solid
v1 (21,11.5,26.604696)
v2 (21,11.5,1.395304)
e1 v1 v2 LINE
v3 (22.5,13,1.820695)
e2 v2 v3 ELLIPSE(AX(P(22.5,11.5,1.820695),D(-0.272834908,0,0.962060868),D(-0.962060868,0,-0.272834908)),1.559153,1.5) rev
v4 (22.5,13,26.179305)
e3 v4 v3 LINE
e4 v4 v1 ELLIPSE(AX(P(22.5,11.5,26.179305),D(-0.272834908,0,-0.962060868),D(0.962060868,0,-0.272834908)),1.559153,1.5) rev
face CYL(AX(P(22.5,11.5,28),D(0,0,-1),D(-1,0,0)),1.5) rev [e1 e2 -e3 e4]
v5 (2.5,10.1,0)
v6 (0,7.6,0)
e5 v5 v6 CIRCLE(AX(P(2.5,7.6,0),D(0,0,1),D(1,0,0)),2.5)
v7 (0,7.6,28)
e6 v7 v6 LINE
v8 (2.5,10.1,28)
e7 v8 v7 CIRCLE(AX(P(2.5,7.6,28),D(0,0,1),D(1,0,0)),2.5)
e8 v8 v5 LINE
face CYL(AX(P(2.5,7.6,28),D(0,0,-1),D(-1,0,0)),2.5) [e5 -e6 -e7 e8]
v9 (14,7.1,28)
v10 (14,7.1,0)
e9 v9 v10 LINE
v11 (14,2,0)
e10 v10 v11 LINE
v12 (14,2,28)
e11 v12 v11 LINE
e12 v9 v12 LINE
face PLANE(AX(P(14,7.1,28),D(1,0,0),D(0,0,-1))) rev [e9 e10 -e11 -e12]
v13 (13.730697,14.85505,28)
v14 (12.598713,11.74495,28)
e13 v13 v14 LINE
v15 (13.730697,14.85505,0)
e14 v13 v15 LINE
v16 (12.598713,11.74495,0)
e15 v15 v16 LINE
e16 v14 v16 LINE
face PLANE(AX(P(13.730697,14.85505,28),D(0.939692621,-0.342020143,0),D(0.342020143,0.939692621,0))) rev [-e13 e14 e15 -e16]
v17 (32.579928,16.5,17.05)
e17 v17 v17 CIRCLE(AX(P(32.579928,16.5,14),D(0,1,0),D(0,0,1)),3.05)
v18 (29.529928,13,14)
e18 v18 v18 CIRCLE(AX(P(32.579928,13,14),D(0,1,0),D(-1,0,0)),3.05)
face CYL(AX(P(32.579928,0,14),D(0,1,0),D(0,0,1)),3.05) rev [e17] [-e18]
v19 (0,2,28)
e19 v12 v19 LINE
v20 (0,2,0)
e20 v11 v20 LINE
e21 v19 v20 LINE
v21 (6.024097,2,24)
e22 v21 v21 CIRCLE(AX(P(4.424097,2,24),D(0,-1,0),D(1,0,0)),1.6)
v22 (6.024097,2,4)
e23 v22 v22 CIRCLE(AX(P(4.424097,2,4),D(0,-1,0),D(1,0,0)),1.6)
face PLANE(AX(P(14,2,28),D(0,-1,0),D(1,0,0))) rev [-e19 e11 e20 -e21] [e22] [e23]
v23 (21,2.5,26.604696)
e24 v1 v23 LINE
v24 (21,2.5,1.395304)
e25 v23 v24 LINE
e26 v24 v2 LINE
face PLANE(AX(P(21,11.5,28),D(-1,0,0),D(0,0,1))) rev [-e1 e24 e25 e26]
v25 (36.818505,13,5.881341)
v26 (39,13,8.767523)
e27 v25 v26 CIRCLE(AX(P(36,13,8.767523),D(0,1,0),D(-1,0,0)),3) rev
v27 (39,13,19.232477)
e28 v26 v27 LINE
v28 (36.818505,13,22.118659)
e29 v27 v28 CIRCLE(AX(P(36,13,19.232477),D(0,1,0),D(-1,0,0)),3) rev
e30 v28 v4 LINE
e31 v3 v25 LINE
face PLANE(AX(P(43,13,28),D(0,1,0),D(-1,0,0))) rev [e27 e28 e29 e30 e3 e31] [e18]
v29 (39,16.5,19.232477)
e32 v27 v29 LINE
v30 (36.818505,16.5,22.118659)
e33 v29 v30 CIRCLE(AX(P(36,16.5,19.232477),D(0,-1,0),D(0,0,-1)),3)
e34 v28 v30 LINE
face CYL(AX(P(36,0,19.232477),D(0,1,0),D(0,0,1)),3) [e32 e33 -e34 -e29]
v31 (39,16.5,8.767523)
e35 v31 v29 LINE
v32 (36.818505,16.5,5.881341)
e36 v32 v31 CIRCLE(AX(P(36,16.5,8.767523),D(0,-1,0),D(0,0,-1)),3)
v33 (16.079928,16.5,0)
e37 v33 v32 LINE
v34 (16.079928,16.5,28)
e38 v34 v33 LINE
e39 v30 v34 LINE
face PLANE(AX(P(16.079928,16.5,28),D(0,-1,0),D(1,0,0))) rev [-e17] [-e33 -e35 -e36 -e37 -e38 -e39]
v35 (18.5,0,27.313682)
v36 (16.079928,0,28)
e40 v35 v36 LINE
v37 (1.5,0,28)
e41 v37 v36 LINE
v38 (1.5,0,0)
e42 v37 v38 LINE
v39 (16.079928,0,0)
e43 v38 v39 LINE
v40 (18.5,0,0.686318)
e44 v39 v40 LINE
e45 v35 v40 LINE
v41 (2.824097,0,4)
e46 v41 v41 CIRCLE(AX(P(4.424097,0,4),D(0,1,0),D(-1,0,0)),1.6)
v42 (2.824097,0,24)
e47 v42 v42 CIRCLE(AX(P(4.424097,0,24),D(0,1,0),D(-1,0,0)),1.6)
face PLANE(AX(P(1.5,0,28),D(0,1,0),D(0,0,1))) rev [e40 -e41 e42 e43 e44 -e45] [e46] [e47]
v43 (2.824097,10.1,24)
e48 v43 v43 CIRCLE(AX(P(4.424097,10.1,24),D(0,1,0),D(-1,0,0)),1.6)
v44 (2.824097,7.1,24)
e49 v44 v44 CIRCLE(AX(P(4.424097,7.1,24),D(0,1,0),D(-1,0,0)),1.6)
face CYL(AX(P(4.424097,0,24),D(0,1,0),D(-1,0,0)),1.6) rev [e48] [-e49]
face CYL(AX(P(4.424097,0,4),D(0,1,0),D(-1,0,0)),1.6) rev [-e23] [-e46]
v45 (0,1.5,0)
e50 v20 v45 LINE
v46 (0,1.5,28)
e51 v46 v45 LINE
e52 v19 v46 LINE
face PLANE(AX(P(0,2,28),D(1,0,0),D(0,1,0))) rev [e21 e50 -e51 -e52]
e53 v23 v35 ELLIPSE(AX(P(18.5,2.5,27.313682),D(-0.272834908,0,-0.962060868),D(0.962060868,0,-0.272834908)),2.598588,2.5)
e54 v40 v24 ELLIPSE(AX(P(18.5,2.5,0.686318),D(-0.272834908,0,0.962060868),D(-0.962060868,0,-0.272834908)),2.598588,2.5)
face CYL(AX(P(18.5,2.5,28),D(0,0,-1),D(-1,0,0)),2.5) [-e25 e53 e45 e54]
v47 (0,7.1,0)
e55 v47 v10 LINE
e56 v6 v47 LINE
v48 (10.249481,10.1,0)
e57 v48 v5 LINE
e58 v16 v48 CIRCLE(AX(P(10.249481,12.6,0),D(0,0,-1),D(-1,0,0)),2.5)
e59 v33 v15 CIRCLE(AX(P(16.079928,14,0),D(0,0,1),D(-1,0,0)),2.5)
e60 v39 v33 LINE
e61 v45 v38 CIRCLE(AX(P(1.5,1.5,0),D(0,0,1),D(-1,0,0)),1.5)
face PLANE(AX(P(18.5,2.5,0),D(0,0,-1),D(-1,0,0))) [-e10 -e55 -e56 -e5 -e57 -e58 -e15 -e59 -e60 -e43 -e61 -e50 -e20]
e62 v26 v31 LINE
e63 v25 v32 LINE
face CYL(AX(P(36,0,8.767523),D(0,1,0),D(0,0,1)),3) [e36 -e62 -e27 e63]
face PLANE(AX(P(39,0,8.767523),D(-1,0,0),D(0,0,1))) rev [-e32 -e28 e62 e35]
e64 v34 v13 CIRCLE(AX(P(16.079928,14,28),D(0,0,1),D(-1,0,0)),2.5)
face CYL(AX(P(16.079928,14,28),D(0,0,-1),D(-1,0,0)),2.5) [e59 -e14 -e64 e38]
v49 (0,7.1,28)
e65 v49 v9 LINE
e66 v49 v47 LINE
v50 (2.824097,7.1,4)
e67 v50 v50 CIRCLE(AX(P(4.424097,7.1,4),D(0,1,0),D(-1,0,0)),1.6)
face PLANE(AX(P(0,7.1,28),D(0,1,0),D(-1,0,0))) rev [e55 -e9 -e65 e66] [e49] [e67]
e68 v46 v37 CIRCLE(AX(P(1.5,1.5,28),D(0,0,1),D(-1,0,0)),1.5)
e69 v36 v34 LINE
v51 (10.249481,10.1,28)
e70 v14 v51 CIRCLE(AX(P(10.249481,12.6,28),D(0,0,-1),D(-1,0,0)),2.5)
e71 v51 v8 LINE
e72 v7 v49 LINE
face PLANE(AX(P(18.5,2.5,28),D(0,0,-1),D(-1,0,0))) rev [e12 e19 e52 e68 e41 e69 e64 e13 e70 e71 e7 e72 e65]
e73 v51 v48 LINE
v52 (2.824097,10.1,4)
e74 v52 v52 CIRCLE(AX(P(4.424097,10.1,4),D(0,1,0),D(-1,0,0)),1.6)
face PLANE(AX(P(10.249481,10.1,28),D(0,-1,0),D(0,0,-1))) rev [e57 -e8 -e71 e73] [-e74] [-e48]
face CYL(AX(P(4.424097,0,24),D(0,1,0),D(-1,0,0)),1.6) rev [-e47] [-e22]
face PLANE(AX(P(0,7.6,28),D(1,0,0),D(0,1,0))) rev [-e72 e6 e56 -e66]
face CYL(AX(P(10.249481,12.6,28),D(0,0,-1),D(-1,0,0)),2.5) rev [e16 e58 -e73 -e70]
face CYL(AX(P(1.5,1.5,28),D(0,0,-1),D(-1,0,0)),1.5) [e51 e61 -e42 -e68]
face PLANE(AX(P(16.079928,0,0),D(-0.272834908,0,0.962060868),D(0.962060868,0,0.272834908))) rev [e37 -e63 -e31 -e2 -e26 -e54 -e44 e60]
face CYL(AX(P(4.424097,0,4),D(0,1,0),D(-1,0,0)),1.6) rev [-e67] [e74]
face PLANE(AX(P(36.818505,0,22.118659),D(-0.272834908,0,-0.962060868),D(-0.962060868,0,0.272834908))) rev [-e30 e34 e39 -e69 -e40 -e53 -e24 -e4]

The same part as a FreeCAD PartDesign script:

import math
import FreeCAD as App
import Part
import Sketcher

V = App.Vector
Q = App.Units.Quantity

doc = App.newDocument("Part")
body = doc.addObject("PartDesign::Body", "Body")

# Sketch on XY plane
sketch1 = body.newObject("Sketcher::SketchObject", "Sketch")
sketch1.AttachmentSupport = (doc.getObject("XY_Plane"), [""])
sketch1.MapMode = "FlatFace"
sketch1.addGeometry([
    Part.LineSegment(V(1.5, 0, 0), V(18.5, 0, 0)),  # 0
    Part.ArcOfCircle(Part.Circle(V(18.5, 2.5, 0), V(0, 0, 1), 2.5), math.radians(-90), math.radians(0)),  # 1
    Part.LineSegment(V(21, 2.5, 0), V(21, 11.5, 0)),  # 2
    Part.ArcOfCircle(Part.Circle(V(22.5, 11.5, 0), V(0, 0, 1), 1.5), math.radians(90), math.radians(180)),  # 3
    Part.LineSegment(V(22.5, 13, 0), V(43, 13, 0)),  # 4
    Part.LineSegment(V(43, 13, 0), V(43, 16.5, 0)),  # 5
    Part.LineSegment(V(43, 16.5, 0), V(16.1, 16.5, 0)),  # 6
    Part.ArcOfCircle(Part.Circle(V(16.1, 14, 0), V(0, 0, 1), 2.5), math.radians(90), math.radians(160)),  # 7
    Part.LineSegment(V(13.7, 14.9, 0), V(12.6, 11.7, 0)),  # 8
    Part.ArcOfCircle(Part.Circle(V(10.2, 12.6, 0), V(0, 0, 1), 2.5), math.radians(-90), math.radians(-20)),  # 9
    Part.LineSegment(V(10.2, 10.1, 0), V(2.5, 10.1, 0)),  # 10
    Part.ArcOfCircle(Part.Circle(V(2.5, 7.6, 0), V(0, 0, 1), 2.5), math.radians(90), math.radians(180)),  # 11
    Part.LineSegment(V(0, 7.6, 0), V(0, 7.1, 0)),  # 12
    Part.LineSegment(V(0, 7.1, 0), V(14, 7.1, 0)),  # 13
    Part.LineSegment(V(14, 7.1, 0), V(14, 2, 0)),  # 14
    Part.LineSegment(V(14, 2, 0), V(0, 2, 0)),  # 15
    Part.LineSegment(V(0, 2, 0), V(0, 1.5, 0)),  # 16
    Part.ArcOfCircle(Part.Circle(V(1.5, 1.5, 0), V(0, 0, 1), 1.5), math.radians(180), math.radians(270)),  # 17
], False)
sketch1.addConstraint([
    Sketcher.Constraint("Tangent", 0, 2, 1, 1),
    Sketcher.Constraint("Tangent", 1, 2, 2, 1),
    Sketcher.Constraint("Tangent", 2, 2, 3, 2),
    Sketcher.Constraint("Tangent", 3, 1, 4, 1),
    Sketcher.Constraint("Coincident", 4, 2, 5, 1),
    Sketcher.Constraint("Coincident", 5, 2, 6, 1),
    Sketcher.Constraint("Tangent", 6, 2, 7, 1),
    Sketcher.Constraint("Tangent", 7, 2, 8, 1),
    Sketcher.Constraint("Tangent", 8, 2, 9, 2),
    Sketcher.Constraint("Tangent", 9, 1, 10, 1),
    Sketcher.Constraint("Tangent", 10, 2, 11, 1),
    Sketcher.Constraint("Tangent", 11, 2, 12, 1),
    Sketcher.Constraint("Coincident", 12, 2, 13, 1),
    Sketcher.Constraint("Coincident", 13, 2, 14, 1),
    Sketcher.Constraint("Coincident", 14, 2, 15, 1),
    Sketcher.Constraint("Coincident", 15, 2, 16, 1),
    Sketcher.Constraint("Tangent", 16, 2, 17, 1),
    Sketcher.Constraint("Tangent", 17, 2, 0, 1),
    Sketcher.Constraint("Horizontal", 0),
    Sketcher.Constraint("Vertical", 2),
    Sketcher.Constraint("Horizontal", 4),
    Sketcher.Constraint("Vertical", 5),
    Sketcher.Constraint("Horizontal", 6),
    Sketcher.Constraint("Horizontal", 10),
    Sketcher.Constraint("Vertical", 12),
    Sketcher.Constraint("Horizontal", 13),
    Sketcher.Constraint("Vertical", 14),
    Sketcher.Constraint("Horizontal", 15),
    Sketcher.Constraint("Vertical", 16),
    Sketcher.Constraint("Equal", 1, 7),
    Sketcher.Constraint("Equal", 7, 9),
    Sketcher.Constraint("Equal", 9, 11),
    Sketcher.Constraint("Equal", 3, 17),
    Sketcher.Constraint("PointOnObject", 0, 2, -1),
    Sketcher.Constraint("PointOnObject", 11, 2, -2),
    Sketcher.Constraint("PointOnObject", 15, 2, -2),
    Sketcher.Constraint("Equal", 12, 16),
    Sketcher.Constraint("Radius", 1, Q("2.5 mm")),
    Sketcher.Constraint("Radius", 3, Q("1.5 mm")),
    Sketcher.Constraint("DistanceX", 0, 1, 0, 2, Q("17 mm")),
    Sketcher.Constraint("DistanceX", 13, 1, 13, 2, Q("14 mm")),
    Sketcher.Constraint("DistanceY", 2, 1, 2, 2, Q("9 mm")),
    Sketcher.Constraint("Angle", 8, Q("-110 deg")),
    Sketcher.Constraint("DistanceX", 4, 1, 4, 2, Q("20.5 mm")),
    Sketcher.Constraint("DistanceY", 5, 1, 5, 2, Q("3.5 mm")),
    Sketcher.Constraint("DistanceY", 12, 2, 12, 1, Q("0.5 mm")),
    Sketcher.Constraint("DistanceY", 14, 2, 14, 1, Q("5.1 mm")),
    Sketcher.Constraint("DistanceX", 6, 2, 6, 1, Q("26.920072 mm")),
])
pad1 = body.newObject("PartDesign::Pad", "Pad")
pad1.Profile = sketch1
pad1.Length = 28

# Sketch on XZ plane
sketch2 = body.newObject("Sketcher::SketchObject", "Sketch001")
sketch2.AttachmentSupport = (doc.getObject("XZ_Plane"), [""])
sketch2.MapMode = "FlatFace"
sketch2.AttachmentOffset = App.Placement(V(0, 0, -10.1), App.Rotation())
sketch2.addGeometry([
    Part.Circle(V(4.4, 4, 0), V(0, 0, 1), 1.6),
    Part.Circle(V(4.4, 24, 0), V(0, 0, 1), 1.6),
], False)
sketch2.addConstraint([
    Sketcher.Constraint("Equal", 0, 1),
    Sketcher.Constraint("Vertical", 0, 3, 1, 3),
    Sketcher.Constraint("Diameter", 0, Q("3.2 mm")),
    Sketcher.Constraint("DistanceY", -1, 1, 0, 3, Q("4 mm")),
    Sketcher.Constraint("DistanceY", -1, 1, 1, 3, Q("24 mm")),
    Sketcher.Constraint("DistanceX", -1, 1, 0, 3, Q("4.424097 mm")),
])
pocket1 = body.newObject("PartDesign::Pocket", "Pocket")
pocket1.Profile = sketch2
pocket1.Type = "ThroughAll"
pocket1.Reversed = True

# Sketch on XZ plane
sketch3 = body.newObject("Sketcher::SketchObject", "Sketch002")
sketch3.AttachmentSupport = (doc.getObject("XZ_Plane"), [""])
sketch3.MapMode = "FlatFace"
sketch3.AttachmentOffset = App.Placement(V(0, 0, -16.5), App.Rotation())
sketch3.addGeometry([
    Part.Circle(V(32.6, 14, 0), V(0, 0, 1), 3),  # 0
    Part.LineSegment(V(16.1, 28, 0), V(43, 28, 0)),  # 1
    Part.LineSegment(V(43, 28, 0), V(43, 0, 0)),  # 2
    Part.LineSegment(V(43, 0, 0), V(16.1, 0, 0)),  # 3
    Part.LineSegment(V(16.1, 0, 0), V(36.8, 5.9, 0)),  # 4
    Part.ArcOfCircle(Part.Circle(V(36, 8.8, 0), V(0, 0, 1), 3), math.radians(-74), math.radians(0)),  # 5
    Part.LineSegment(V(39, 8.8, 0), V(39, 19.2, 0)),  # 6
    Part.ArcOfCircle(Part.Circle(V(36, 19.2, 0), V(0, 0, 1), 3), math.radians(0), math.radians(74)),  # 7
    Part.LineSegment(V(36.8, 22.1, 0), V(16.1, 28, 0)),  # 8
], False)
sketch3.addConstraint([
    Sketcher.Constraint("Coincident", 1, 2, 2, 1),
    Sketcher.Constraint("Coincident", 2, 2, 3, 1),
    Sketcher.Constraint("Coincident", 3, 2, 4, 1),
    Sketcher.Constraint("Tangent", 4, 2, 5, 1),
    Sketcher.Constraint("Tangent", 5, 2, 6, 1),
    Sketcher.Constraint("Tangent", 6, 2, 7, 1),
    Sketcher.Constraint("Tangent", 7, 2, 8, 1),
    Sketcher.Constraint("Coincident", 8, 2, 1, 1),
    Sketcher.Constraint("Horizontal", 1),
    Sketcher.Constraint("Vertical", 2),
    Sketcher.Constraint("Horizontal", 3),
    Sketcher.Constraint("Vertical", 6),
    Sketcher.Constraint("Equal", 5, 7),
    Sketcher.Constraint("PointOnObject", 2, 2, -1),
    Sketcher.Constraint("Vertical", 4, 2, 7, 2),
    Sketcher.Constraint("Vertical", 3, 2, 8, 2),
    Sketcher.Constraint("Radius", 5, Q("3 mm")),
    Sketcher.Constraint("Diameter", 0, Q("6.1 mm")),
    Sketcher.Constraint("DistanceY", 2, 2, 2, 1, Q("28 mm")),
    Sketcher.Constraint("DistanceY", -1, 1, 0, 3, Q("14 mm")),
    Sketcher.Constraint("DistanceX", -1, 1, 5, 3, Q("36 mm")),
    Sketcher.Constraint("DistanceX", -1, 1, 1, 2, Q("43 mm")),
    Sketcher.Constraint("DistanceX", 3, 2, 0, 3, Q("16.5 mm")),
    Sketcher.Constraint("DistanceX", 1, 1, 1, 2, Q("26.920072 mm")),
    Sketcher.Constraint("DistanceY", 6, 1, 6, 2, Q("10.464954 mm")),
])
pocket2 = body.newObject("PartDesign::Pocket", "Pocket001")
pocket2.Profile = sketch3
pocket2.Type = "ThroughAll"
pocket2.Reversed = True

doc.recompute()
